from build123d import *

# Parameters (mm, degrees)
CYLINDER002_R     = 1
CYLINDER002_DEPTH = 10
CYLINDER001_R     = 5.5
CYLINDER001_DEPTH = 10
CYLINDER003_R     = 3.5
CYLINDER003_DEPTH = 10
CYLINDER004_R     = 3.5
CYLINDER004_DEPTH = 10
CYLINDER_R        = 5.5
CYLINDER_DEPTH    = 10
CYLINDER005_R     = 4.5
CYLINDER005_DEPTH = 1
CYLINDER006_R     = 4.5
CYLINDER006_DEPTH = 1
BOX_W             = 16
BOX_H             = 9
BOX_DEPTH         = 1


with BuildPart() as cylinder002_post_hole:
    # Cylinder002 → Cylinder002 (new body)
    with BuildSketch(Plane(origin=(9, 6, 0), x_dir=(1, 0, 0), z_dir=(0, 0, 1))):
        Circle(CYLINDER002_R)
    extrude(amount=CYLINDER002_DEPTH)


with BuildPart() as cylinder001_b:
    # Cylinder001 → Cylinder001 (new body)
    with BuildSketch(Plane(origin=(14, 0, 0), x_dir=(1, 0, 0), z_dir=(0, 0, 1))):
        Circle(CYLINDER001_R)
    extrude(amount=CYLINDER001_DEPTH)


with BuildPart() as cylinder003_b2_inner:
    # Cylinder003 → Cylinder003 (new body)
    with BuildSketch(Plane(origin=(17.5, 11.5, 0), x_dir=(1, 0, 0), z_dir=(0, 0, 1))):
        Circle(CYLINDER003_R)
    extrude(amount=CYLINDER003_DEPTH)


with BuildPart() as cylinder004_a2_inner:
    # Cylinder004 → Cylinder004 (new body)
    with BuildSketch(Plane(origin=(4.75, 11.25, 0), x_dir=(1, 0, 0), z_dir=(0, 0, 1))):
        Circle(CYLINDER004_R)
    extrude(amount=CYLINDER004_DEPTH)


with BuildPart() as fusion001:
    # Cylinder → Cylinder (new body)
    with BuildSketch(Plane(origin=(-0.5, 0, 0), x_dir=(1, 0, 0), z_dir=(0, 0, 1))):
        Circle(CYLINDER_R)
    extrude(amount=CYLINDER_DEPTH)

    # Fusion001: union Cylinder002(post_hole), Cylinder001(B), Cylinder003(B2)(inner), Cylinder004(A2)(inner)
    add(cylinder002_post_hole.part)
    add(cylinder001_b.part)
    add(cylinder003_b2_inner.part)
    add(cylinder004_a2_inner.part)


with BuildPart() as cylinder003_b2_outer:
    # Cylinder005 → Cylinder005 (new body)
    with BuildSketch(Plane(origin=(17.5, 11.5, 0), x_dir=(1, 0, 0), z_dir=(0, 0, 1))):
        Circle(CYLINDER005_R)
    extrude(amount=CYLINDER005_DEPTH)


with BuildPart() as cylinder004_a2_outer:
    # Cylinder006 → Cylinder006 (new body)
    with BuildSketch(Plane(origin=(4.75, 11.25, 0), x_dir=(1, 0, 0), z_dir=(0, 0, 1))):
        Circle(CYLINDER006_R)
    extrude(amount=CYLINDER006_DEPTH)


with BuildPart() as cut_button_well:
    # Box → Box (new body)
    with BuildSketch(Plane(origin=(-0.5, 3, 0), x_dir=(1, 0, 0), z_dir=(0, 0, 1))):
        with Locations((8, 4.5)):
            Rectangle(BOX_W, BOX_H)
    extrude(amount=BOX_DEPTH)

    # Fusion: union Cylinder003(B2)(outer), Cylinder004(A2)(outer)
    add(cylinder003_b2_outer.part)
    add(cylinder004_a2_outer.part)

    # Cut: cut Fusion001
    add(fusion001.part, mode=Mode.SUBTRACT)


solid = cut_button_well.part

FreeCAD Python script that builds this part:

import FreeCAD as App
import Part
import Sketcher


def add_polygon(sketch, points):
    """Adds a closed chain of lines whose ends are joined by coincident constraints."""
    first, n = sketch.GeometryCount, len(points)
    for a, b in zip(points, points[1:] + points[:1]):
        sketch.addGeometry(Part.LineSegment(App.Vector(*a, 0), App.Vector(*b, 0)), False)
    for i in range(n):
        sketch.addConstraint(Sketcher.Constraint("Coincident", first + i, 2, first + (i + 1) % n, 1))

doc = App.newDocument("Part")
body = doc.addObject("PartDesign::Body", "Body")

sketch1 = doc.addObject("Sketcher::SketchObject", "Sketch")
body.addObject(sketch1)
sketch1.AttachmentSupport = (doc.XY_Plane, [""])
sketch1.MapMode = "FlatFace"
sketch1.addGeometry(Part.Circle(App.Vector(9, 6, 0), App.Vector(0, 0, 1), 1), False)
sketch1.addConstraint(Sketcher.Constraint("Diameter", 0, 2.0))
sketch1.addConstraint(Sketcher.Constraint("DistanceX", -1, 1, 0, 3, 9.0))
sketch1.addConstraint(Sketcher.Constraint("DistanceY", -1, 1, 0, 3, 6.0))
pad1 = doc.addObject("PartDesign::Pad", "Pad")
body.addObject(pad1)
pad1.Profile = sketch1
pad1.Length = 10
body2 = doc.addObject("PartDesign::Body", "Body001")

sketch2 = doc.addObject("Sketcher::SketchObject", "Sketch001")
body2.addObject(sketch2)
sketch2.AttachmentSupport = (doc.getObject("XY_Plane001"), [""])
sketch2.MapMode = "FlatFace"
sketch2.addGeometry(Part.Circle(App.Vector(14, 0, 0), App.Vector(0, 0, 1), 6), False)
sketch2.addConstraint(Sketcher.Constraint("PointOnObject", 0, 3, -1))
sketch2.addConstraint(Sketcher.Constraint("Diameter", 0, 11.0))
sketch2.addConstraint(Sketcher.Constraint("DistanceX", -1, 1, 0, 3, 14.0))
pad2 = doc.addObject("PartDesign::Pad", "Pad001")
body2.addObject(pad2)
pad2.Profile = sketch2
pad2.Length = 10
body3 = doc.addObject("PartDesign::Body", "Body002")

sketch3 = doc.addObject("Sketcher::SketchObject", "Sketch002")
body3.addObject(sketch3)
sketch3.AttachmentSupport = (doc.getObject("XY_Plane002"), [""])
sketch3.MapMode = "FlatFace"
sketch3.addGeometry(Part.Circle(App.Vector(17.5, 11.5, 0), App.Vector(0, 0, 1), 3.5), False)
sketch3.addConstraint(Sketcher.Constraint("Diameter", 0, 7.0))
sketch3.addConstraint(Sketcher.Constraint("DistanceX", -1, 1, 0, 3, 17.5))
sketch3.addConstraint(Sketcher.Constraint("DistanceY", -1, 1, 0, 3, 11.5))
pad3 = doc.addObject("PartDesign::Pad", "Pad002")
body3.addObject(pad3)
pad3.Profile = sketch3
pad3.Length = 10
body4 = doc.addObject("PartDesign::Body", "Body003")

sketch4 = doc.addObject("Sketcher::SketchObject", "Sketch003")
body4.addObject(sketch4)
sketch4.AttachmentSupport = (doc.getObject("XY_Plane003"), [""])
sketch4.MapMode = "FlatFace"
sketch4.addGeometry(Part.Circle(App.Vector(4.8, 11.2, 0), App.Vector(0, 0, 1), 3.5), False)
sketch4.addConstraint(Sketcher.Constraint("Diameter", 0, 7.0))
sketch4.addConstraint(Sketcher.Constraint("DistanceX", -1, 1, 0, 3, 4.75))
sketch4.addConstraint(Sketcher.Constraint("DistanceY", -1, 1, 0, 3, 11.25))
pad4 = doc.addObject("PartDesign::Pad", "Pad003")
body4.addObject(pad4)
pad4.Profile = sketch4
pad4.Length = 10
body5 = doc.addObject("PartDesign::Body", "Body004")
body5.AllowCompound = True

sketch5 = doc.addObject("Sketcher::SketchObject", "Sketch004")
body5.addObject(sketch5)
sketch5.AttachmentSupport = (doc.getObject("XY_Plane004"), [""])
sketch5.MapMode = "FlatFace"
sketch5.addGeometry(Part.Circle(App.Vector(0, 0, 0), App.Vector(0, 0, 1), 6), False)
sketch5.addConstraint(Sketcher.Constraint("PointOnObject", 0, 3, -1))
sketch5.addConstraint(Sketcher.Constraint("Diameter", 0, 11.0))
sketch5.addConstraint(Sketcher.Constraint("DistanceX", 0, 3, -1, 1, 0.5))
pad5 = doc.addObject("PartDesign::Pad", "Pad004")
body5.addObject(pad5)
pad5.Profile = sketch5
pad5.Length = 10
doc.recompute()

boolean = doc.addObject("PartDesign::Boolean", "Boolean")
body5.addObject(boolean)
boolean.Type = "Fuse"
boolean.addObjects([body])
doc.recompute()

boolean2 = doc.addObject("PartDesign::Boolean", "Boolean001")
body5.addObject(boolean2)
boolean2.Type = "Fuse"
boolean2.addObjects([body2])
doc.recompute()

boolean3 = doc.addObject("PartDesign::Boolean", "Boolean002")
body5.addObject(boolean3)
boolean3.Type = "Fuse"
boolean3.addObjects([body3])
doc.recompute()

boolean4 = doc.addObject("PartDesign::Boolean", "Boolean003")
body5.addObject(boolean4)
boolean4.Type = "Fuse"
boolean4.addObjects([body4])
body6 = doc.addObject("PartDesign::Body", "Body005")

sketch6 = doc.addObject("Sketcher::SketchObject", "Sketch005")
body6.addObject(sketch6)
sketch6.AttachmentSupport = (doc.getObject("XY_Plane005"), [""])
sketch6.MapMode = "FlatFace"
sketch6.addGeometry(Part.Circle(App.Vector(17.5, 11.5, 0), App.Vector(0, 0, 1), 4.5), False)
sketch6.addConstraint(Sketcher.Constraint("Diameter", 0, 9.0))
sketch6.addConstraint(Sketcher.Constraint("DistanceX", -1, 1, 0, 3, 17.5))
sketch6.addConstraint(Sketcher.Constraint("DistanceY", -1, 1, 0, 3, 11.5))
pad6 = doc.addObject("PartDesign::Pad", "Pad005")
body6.addObject(pad6)
pad6.Profile = sketch6
pad6.Length = 1
body7 = doc.addObject("PartDesign::Body", "Body006")

sketch7 = doc.addObject("Sketcher::SketchObject", "Sketch006")
body7.addObject(sketch7)
sketch7.AttachmentSupport = (doc.getObject("XY_Plane006"), [""])
sketch7.MapMode = "FlatFace"
sketch7.addGeometry(Part.Circle(App.Vector(4.8, 11.2, 0), App.Vector(0, 0, 1), 4.5), False)
sketch7.addConstraint(Sketcher.Constraint("Diameter", 0, 9.0))
sketch7.addConstraint(Sketcher.Constraint("DistanceX", -1, 1, 0, 3, 4.75))
sketch7.addConstraint(Sketcher.Constraint("DistanceY", -1, 1, 0, 3, 11.25))
pad7 = doc.addObject("PartDesign::Pad", "Pad006")
body7.addObject(pad7)
pad7.Profile = sketch7
pad7.Length = 1
body8 = doc.addObject("PartDesign::Body", "Body007")

sketch8 = doc.addObject("Sketcher::SketchObject", "Sketch007")
body8.addObject(sketch8)
sketch8.AttachmentSupport = (doc.getObject("XY_Plane007"), [""])
sketch8.MapMode = "FlatFace"
add_polygon(sketch8, [(0, 12), (0, 3), (16, 3), (16, 12)])
sketch8.addConstraint(Sketcher.Constraint("Vertical", 0))
sketch8.addConstraint(Sketcher.Constraint("Horizontal", 1))
sketch8.addConstraint(Sketcher.Constraint("Vertical", 2))
sketch8.addConstraint(Sketcher.Constraint("Horizontal", 3))
sketch8.addConstraint(Sketcher.Constraint("DistanceX", 1, 1, 1, 2, 16.0))
sketch8.addConstraint(Sketcher.Constraint("DistanceY", 0, 2, 0, 1, 9.0))
sketch8.addConstraint(Sketcher.Constraint("DistanceY", -1, 1, 0, 2, 3.0))
sketch8.addConstraint(Sketcher.Constraint("DistanceX", 0, 2, -1, 1, 0.5))
pad8 = doc.addObject("PartDesign::Pad", "Pad007")
body8.addObject(pad8)
pad8.Profile = sketch8
pad8.Length = 1
doc.recompute()

boolean5 = doc.addObject("PartDesign::Boolean", "Boolean004")
body8.addObject(boolean5)
boolean5.Type = "Fuse"
boolean5.addObjects([body6])
doc.recompute()

boolean6 = doc.addObject("PartDesign::Boolean", "Boolean005")
body8.addObject(boolean6)
boolean6.Type = "Fuse"
boolean6.addObjects([body7])
doc.recompute()

boolean7 = doc.addObject("PartDesign::Boolean", "Boolean006")
body8.addObject(boolean7)
boolean7.Type = "Cut"
boolean7.addObjects([body5])

doc.recompute()
